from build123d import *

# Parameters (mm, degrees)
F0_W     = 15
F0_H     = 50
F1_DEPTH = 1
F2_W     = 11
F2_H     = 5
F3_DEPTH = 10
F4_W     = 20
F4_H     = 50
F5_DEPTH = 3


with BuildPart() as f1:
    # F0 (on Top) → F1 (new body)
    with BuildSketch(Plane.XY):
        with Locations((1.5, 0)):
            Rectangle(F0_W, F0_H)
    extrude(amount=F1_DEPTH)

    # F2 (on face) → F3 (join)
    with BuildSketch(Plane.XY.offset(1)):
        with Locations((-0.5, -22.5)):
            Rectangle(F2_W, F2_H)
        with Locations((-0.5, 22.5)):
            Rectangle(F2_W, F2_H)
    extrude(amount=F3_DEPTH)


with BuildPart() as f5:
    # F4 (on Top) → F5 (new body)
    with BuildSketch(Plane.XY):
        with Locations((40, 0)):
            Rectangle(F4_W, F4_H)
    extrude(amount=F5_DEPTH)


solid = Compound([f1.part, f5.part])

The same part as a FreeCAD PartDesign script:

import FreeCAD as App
import Part
import Sketcher
from FreeCAD import Vector
Q = App.Units.Quantity

doc = App.newDocument("Part")
body = doc.addObject("PartDesign::Body", "Body")

# Sketch on XY plane
sketch1 = body.newObject("Sketcher::SketchObject", "Sketch")
sketch1.AttachmentSupport = (doc.getObject("XY_Plane"), [""])
sketch1.MapMode = "FlatFace"
sketch1.addGeometry([
    Part.LineSegment(Vector(-6, 25, 0), Vector(-6, -25, 0)),
    Part.LineSegment(Vector(-6, -25, 0), Vector(9, -25, 0)),
    Part.LineSegment(Vector(9, -25, 0), Vector(9, 25, 0)),
    Part.LineSegment(Vector(9, 25, 0), Vector(-6, 25, 0)),
], False)
sketch1.addConstraint([
    Sketcher.Constraint("Coincident", 0, 2, 1, 1),
    Sketcher.Constraint("Coincident", 1, 2, 2, 1),
    Sketcher.Constraint("Coincident", 2, 2, 3, 1),
    Sketcher.Constraint("Coincident", 3, 2, 0, 1),
    Sketcher.Constraint("Vertical", 0),
    Sketcher.Constraint("Horizontal", 1),
    Sketcher.Constraint("Vertical", 2),
    Sketcher.Constraint("Horizontal", 3),
    Sketcher.Constraint("DistanceX", 1, 1, 1, 2, Q("15 mm")),
    Sketcher.Constraint("DistanceY", 0, 2, 0, 1, Q("50 mm")),
    Sketcher.Constraint("DistanceX", 0, 2, -1, 1, Q("6 mm")),
    Sketcher.Constraint("DistanceY", 0, 2, -1, 1, Q("25 mm")),
])
pad1 = body.newObject("PartDesign::Pad", "Pad")
pad1.Profile = sketch1
pad1.Length = 1

# Sketch on XY plane
sketch2 = body.newObject("Sketcher::SketchObject", "Sketch001")
sketch2.AttachmentSupport = (doc.getObject("XY_Plane"), [""])
sketch2.MapMode = "FlatFace"
sketch2.AttachmentOffset = App.Placement(Vector(0, 0, 1), App.Rotation())
sketch2.addGeometry([
    Part.LineSegment(Vector(-6, -20, 0), Vector(-6, -25, 0)),  # 0
    Part.LineSegment(Vector(-6, -25, 0), Vector(5, -25, 0)),  # 1
    Part.LineSegment(Vector(5, -25, 0), Vector(5, -20, 0)),  # 2
    Part.LineSegment(Vector(5, -20, 0), Vector(-6, -20, 0)),  # 3
    Part.LineSegment(Vector(-6, 25, 0), Vector(-6, 20, 0)),  # 4
    Part.LineSegment(Vector(-6, 20, 0), Vector(5, 20, 0)),  # 5
    Part.LineSegment(Vector(5, 20, 0), Vector(5, 25, 0)),  # 6
    Part.LineSegment(Vector(5, 25, 0), Vector(-6, 25, 0)),  # 7
], False)
sketch2.addConstraint([
    Sketcher.Constraint("Coincident", 0, 2, 1, 1),
    Sketcher.Constraint("Coincident", 1, 2, 2, 1),
    Sketcher.Constraint("Coincident", 2, 2, 3, 1),
    Sketcher.Constraint("Coincident", 3, 2, 0, 1),
    Sketcher.Constraint("Coincident", 4, 2, 5, 1),
    Sketcher.Constraint("Coincident", 5, 2, 6, 1),
    Sketcher.Constraint("Coincident", 6, 2, 7, 1),
    Sketcher.Constraint("Coincident", 7, 2, 4, 1),
    Sketcher.Constraint("Vertical", 0),
    Sketcher.Constraint("Horizontal", 1),
    Sketcher.Constraint("Vertical", 2),
    Sketcher.Constraint("Horizontal", 3),
    Sketcher.Constraint("Vertical", 4),
    Sketcher.Constraint("Horizontal", 5),
    Sketcher.Constraint("Vertical", 6),
    Sketcher.Constraint("Horizontal", 7),
    Sketcher.Constraint("Symmetric", 3, 2, 4, 2, -1),
    Sketcher.Constraint("Symmetric", 1, 2, 6, 2, -1),
    Sketcher.Constraint("DistanceX", 1, 1, 1, 2, Q("11 mm")),
    Sketcher.Constraint("DistanceY", 0, 2, 0, 1, Q("5 mm")),
    Sketcher.Constraint("DistanceX", 0, 2, -1, 1, Q("6 mm")),
    Sketcher.Constraint("DistanceY", 0, 2, -1, 1, Q("25 mm")),
])
pad2 = body.newObject("PartDesign::Pad", "Pad001")
pad2.Profile = sketch2
pad2.Length = 10
body2 = doc.addObject("PartDesign::Body", "Body001")

# Sketch on XY plane
sketch3 = body2.newObject("Sketcher::SketchObject", "Sketch002")
sketch3.AttachmentSupport = (doc.getObject("XY_Plane001"), [""])
sketch3.MapMode = "FlatFace"
sketch3.addGeometry([
    Part.LineSegment(Vector(30, 25, 0), Vector(30, -25, 0)),
    Part.LineSegment(Vector(30, -25, 0), Vector(50, -25, 0)),
    Part.LineSegment(Vector(50, -25, 0), Vector(50, 25, 0)),
    Part.LineSegment(Vector(50, 25, 0), Vector(30, 25, 0)),
], False)
sketch3.addConstraint([
    Sketcher.Constraint("Coincident", 0, 2, 1, 1),
    Sketcher.Constraint("Coincident", 1, 2, 2, 1),
    Sketcher.Constraint("Coincident", 2, 2, 3, 1),
    Sketcher.Constraint("Coincident", 3, 2, 0, 1),
    Sketcher.Constraint("Vertical", 0),
    Sketcher.Constraint("Horizontal", 1),
    Sketcher.Constraint("Vertical", 2),
    Sketcher.Constraint("Horizontal", 3),
    Sketcher.Constraint("DistanceX", 1, 1, 1, 2, Q("20 mm")),
    Sketcher.Constraint("DistanceY", 0, 2, 0, 1, Q("50 mm")),
    Sketcher.Constraint("DistanceX", -1, 1, 0, 2, Q("30 mm")),
    Sketcher.Constraint("DistanceY", 0, 2, -1, 1, Q("25 mm")),
])
pad3 = body2.newObject("PartDesign::Pad", "Pad002")
pad3.Profile = sketch3
pad3.Length = 3

doc.recompute()
